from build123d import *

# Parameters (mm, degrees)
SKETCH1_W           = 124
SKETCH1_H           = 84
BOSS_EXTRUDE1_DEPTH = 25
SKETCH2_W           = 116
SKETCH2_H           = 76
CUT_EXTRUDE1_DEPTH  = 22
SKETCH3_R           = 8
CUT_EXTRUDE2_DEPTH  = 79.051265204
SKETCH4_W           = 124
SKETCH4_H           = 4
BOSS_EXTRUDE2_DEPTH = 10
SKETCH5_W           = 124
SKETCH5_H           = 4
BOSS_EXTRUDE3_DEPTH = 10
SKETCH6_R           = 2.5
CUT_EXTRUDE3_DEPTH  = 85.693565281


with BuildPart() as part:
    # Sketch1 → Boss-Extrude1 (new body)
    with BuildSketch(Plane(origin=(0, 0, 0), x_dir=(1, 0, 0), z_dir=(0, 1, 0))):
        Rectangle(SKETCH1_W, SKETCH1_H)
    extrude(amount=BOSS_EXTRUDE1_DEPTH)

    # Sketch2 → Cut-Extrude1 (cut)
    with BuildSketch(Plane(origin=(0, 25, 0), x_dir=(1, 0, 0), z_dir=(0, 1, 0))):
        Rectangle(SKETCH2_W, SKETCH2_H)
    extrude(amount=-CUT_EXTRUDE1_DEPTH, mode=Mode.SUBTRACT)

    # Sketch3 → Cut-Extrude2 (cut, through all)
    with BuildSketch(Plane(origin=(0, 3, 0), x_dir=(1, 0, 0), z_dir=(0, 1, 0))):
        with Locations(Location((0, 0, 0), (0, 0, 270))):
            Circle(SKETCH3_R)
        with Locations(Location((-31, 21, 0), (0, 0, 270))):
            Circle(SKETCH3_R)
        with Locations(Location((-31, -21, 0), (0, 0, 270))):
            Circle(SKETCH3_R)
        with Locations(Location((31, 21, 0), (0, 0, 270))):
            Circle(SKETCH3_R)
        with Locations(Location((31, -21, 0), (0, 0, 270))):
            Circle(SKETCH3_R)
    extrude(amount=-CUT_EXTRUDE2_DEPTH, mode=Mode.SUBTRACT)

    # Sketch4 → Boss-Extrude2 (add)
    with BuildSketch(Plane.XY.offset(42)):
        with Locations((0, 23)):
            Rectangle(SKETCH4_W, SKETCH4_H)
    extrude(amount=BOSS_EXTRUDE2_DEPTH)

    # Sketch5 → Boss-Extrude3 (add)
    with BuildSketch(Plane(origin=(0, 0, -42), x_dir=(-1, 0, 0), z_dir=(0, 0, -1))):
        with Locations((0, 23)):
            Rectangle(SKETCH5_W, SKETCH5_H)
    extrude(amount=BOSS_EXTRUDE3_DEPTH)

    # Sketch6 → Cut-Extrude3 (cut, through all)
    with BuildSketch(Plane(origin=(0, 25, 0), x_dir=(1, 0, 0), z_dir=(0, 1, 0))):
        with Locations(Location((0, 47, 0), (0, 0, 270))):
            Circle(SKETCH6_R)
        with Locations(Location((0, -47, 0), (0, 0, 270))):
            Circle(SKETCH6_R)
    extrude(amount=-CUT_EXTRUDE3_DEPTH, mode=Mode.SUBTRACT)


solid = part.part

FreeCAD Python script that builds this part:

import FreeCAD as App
import Part
import Sketcher

V = App.Vector
Q = App.Units.Quantity

doc = App.newDocument("Part")
params = doc.addObject("Spreadsheet::Sheet", "Params")
for row, (alias, value) in enumerate([
    ("sketch1_width", "124 mm"),
    ("sketch1_height", "84 mm"),
    ("pad1_length", "25 mm"),
    ("sketch2_width", "116 mm"),
    ("sketch2_height", "76 mm"),
    ("pocket1_length", "22 mm"),
    ("sketch3_diameter", "16 mm"),
    ("sketch4_width", "124 mm"),
    ("sketch4_height", "4 mm"),
    ("pad2_length", "10 mm"),
    ("sketch5_width", "124 mm"),
    ("sketch5_height", "4 mm"),
    ("pad3_length", "10 mm"),
    ("sketch6_diameter", "5 mm"),
], start=1):
    params.set(f"A{row}", alias)
    params.set(f"B{row}", "=" + value)
    params.setAlias(f"B{row}", alias)

body = doc.addObject("PartDesign::Body", "Body")

# Sketch on XZ plane
sketch1 = body.newObject("Sketcher::SketchObject", "Sketch")
sketch1.AttachmentSupport = (doc.getObject("XZ_Plane"), [""])
sketch1.MapMode = "FlatFace"
sketch1.addGeometry(Part.LineSegment(V(-62, -42, 0), V(-62, 42, 0)), False)
sketch1.addGeometry(Part.LineSegment(V(-62, 42, 0), V(62, 42, 0)), False)
sketch1.addGeometry(Part.LineSegment(V(62, 42, 0), V(62, -42, 0)), False)
sketch1.addGeometry(Part.LineSegment(V(62, -42, 0), V(-62, -42, 0)), False)
sketch1.addConstraint(Sketcher.Constraint("Coincident", 0, 2, 1, 1))
sketch1.addConstraint(Sketcher.Constraint("Coincident", 1, 2, 2, 1))
sketch1.addConstraint(Sketcher.Constraint("Coincident", 2, 2, 3, 1))
sketch1.addConstraint(Sketcher.Constraint("Coincident", 3, 2, 0, 1))
sketch1.addConstraint(Sketcher.Constraint("Vertical", 0))
sketch1.addConstraint(Sketcher.Constraint("Horizontal", 1))
sketch1.addConstraint(Sketcher.Constraint("Vertical", 2))
sketch1.addConstraint(Sketcher.Constraint("Horizontal", 3))
sketch1.addConstraint(Sketcher.Constraint("Symmetric", 0, 2, 2, 2, -1, 1))
sketch1.addConstraint(Sketcher.Constraint("DistanceX", 1, 1, 1, 2, Q("124 mm")))
sketch1.addConstraint(Sketcher.Constraint("DistanceY", 0, 1, 0, 2, Q("84 mm")))
sketch1.setExpression("Constraints[9]", "Params.sketch1_width")
sketch1.setExpression("Constraints[10]", "Params.sketch1_height")
pad1 = body.newObject("PartDesign::Pad", "Pad")
pad1.Profile = sketch1
pad1.setExpression("Length", "Params.pad1_length")
pad1.Reversed = True

# Sketch on XZ plane
sketch2 = body.newObject("Sketcher::SketchObject", "Sketch001")
sketch2.AttachmentSupport = (doc.getObject("XZ_Plane"), [""])
sketch2.MapMode = "FlatFace"
sketch2.AttachmentOffset = App.Placement(V(0, 0, -25), App.Rotation())
sketch2.addGeometry(Part.LineSegment(V(-58, -38, 0), V(-58, 38, 0)), False)
sketch2.addGeometry(Part.LineSegment(V(-58, 38, 0), V(58, 38, 0)), False)
sketch2.addGeometry(Part.LineSegment(V(58, 38, 0), V(58, -38, 0)), False)
sketch2.addGeometry(Part.LineSegment(V(58, -38, 0), V(-58, -38, 0)), False)
sketch2.addConstraint(Sketcher.Constraint("Coincident", 0, 2, 1, 1))
sketch2.addConstraint(Sketcher.Constraint("Coincident", 1, 2, 2, 1))
sketch2.addConstraint(Sketcher.Constraint("Coincident", 2, 2, 3, 1))
sketch2.addConstraint(Sketcher.Constraint("Coincident", 3, 2, 0, 1))
sketch2.addConstraint(Sketcher.Constraint("Vertical", 0))
sketch2.addConstraint(Sketcher.Constraint("Horizontal", 1))
sketch2.addConstraint(Sketcher.Constraint("Vertical", 2))
sketch2.addConstraint(Sketcher.Constraint("Horizontal", 3))
sketch2.addConstraint(Sketcher.Constraint("Symmetric", 0, 2, 2, 2, -1, 1))
sketch2.addConstraint(Sketcher.Constraint("DistanceX", 1, 1, 1, 2, Q("116 mm")))
sketch2.addConstraint(Sketcher.Constraint("DistanceY", 0, 1, 0, 2, Q("76 mm")))
sketch2.setExpression("Constraints[9]", "Params.sketch2_width")
sketch2.setExpression("Constraints[10]", "Params.sketch2_height")
pocket1 = body.newObject("PartDesign::Pocket", "Pocket")
pocket1.Profile = sketch2
pocket1.setExpression("Length", "Params.pocket1_length")
pocket1.Reversed = True

# Sketch on XZ plane
sketch3 = body.newObject("Sketcher::SketchObject", "Sketch002")
sketch3.AttachmentSupport = (doc.getObject("XZ_Plane"), [""])
sketch3.MapMode = "FlatFace"
sketch3.AttachmentOffset = App.Placement(V(0, 0, -3), App.Rotation())
sketch3.addGeometry(Part.Circle(V(0, 0, 0), V(0, 0, 1), 8), False)
sketch3.addGeometry(Part.Circle(V(-31, -21, 0), V(0, 0, 1), 8), False)
sketch3.addGeometry(Part.Circle(V(-31, 21, 0), V(0, 0, 1), 8), False)
sketch3.addGeometry(Part.Circle(V(31, -21, 0), V(0, 0, 1), 8), False)
sketch3.addGeometry(Part.Circle(V(31, 21, 0), V(0, 0, 1), 8), False)
sketch3.addConstraint(Sketcher.Constraint("Coincident", 0, 3, -1, 1))
sketch3.addConstraint(Sketcher.Constraint("Equal", 0, 1))
sketch3.addConstraint(Sketcher.Constraint("Equal", 1, 2))
sketch3.addConstraint(Sketcher.Constraint("Equal", 2, 3))
sketch3.addConstraint(Sketcher.Constraint("Equal", 3, 4))
sketch3.addConstraint(Sketcher.Constraint("Symmetric", 2, 3, 3, 3, -1, 1))
sketch3.addConstraint(Sketcher.Constraint("Symmetric", 1, 3, 4, 3, -1, 1))
sketch3.addConstraint(Sketcher.Constraint("Symmetric", 1, 3, 3, 3, -2))
sketch3.addConstraint(Sketcher.Constraint("Diameter", 0, Q("16 mm")))
sketch3.addConstraint(Sketcher.Constraint("DistanceX", 1, 3, -1, 1, Q("31 mm")))
sketch3.addConstraint(Sketcher.Constraint("DistanceY", 1, 3, -1, 1, Q("21 mm")))
sketch3.setExpression("Constraints[8]", "Params.sketch3_diameter")
pocket2 = body.newObject("PartDesign::Pocket", "Pocket001")
pocket2.Profile = sketch3
pocket2.Type = "ThroughAll"
pocket2.Reversed = True

# Sketch on XY plane
sketch4 = body.newObject("Sketcher::SketchObject", "Sketch003")
sketch4.AttachmentSupport = (doc.getObject("XY_Plane"), [""])
sketch4.MapMode = "FlatFace"
sketch4.AttachmentOffset = App.Placement(V(0, 0, 42), App.Rotation())
sketch4.addGeometry(Part.LineSegment(V(-62, 25, 0), V(-62, 21, 0)), False)
sketch4.addGeometry(Part.LineSegment(V(-62, 21, 0), V(62, 21, 0)), False)
sketch4.addGeometry(Part.LineSegment(V(62, 21, 0), V(62, 25, 0)), False)
sketch4.addGeometry(Part.LineSegment(V(62, 25, 0), V(-62, 25, 0)), False)
sketch4.addConstraint(Sketcher.Constraint("Coincident", 0, 2, 1, 1))
sketch4.addConstraint(Sketcher.Constraint("Coincident", 1, 2, 2, 1))
sketch4.addConstraint(Sketcher.Constraint("Coincident", 2, 2, 3, 1))
sketch4.addConstraint(Sketcher.Constraint("Coincident", 3, 2, 0, 1))
sketch4.addConstraint(Sketcher.Constraint("Vertical", 0))
sketch4.addConstraint(Sketcher.Constraint("Horizontal", 1))
sketch4.addConstraint(Sketcher.Constraint("Vertical", 2))
sketch4.addConstraint(Sketcher.Constraint("Horizontal", 3))
sketch4.addConstraint(Sketcher.Constraint("DistanceX", 1, 1, 1, 2, Q("124 mm")))
sketch4.addConstraint(Sketcher.Constraint("DistanceY", 0, 2, 0, 1, Q("4 mm")))
sketch4.addConstraint(Sketcher.Constraint("DistanceX", 0, 2, -1, 1, Q("62 mm")))
sketch4.addConstraint(Sketcher.Constraint("DistanceY", -1, 1, 0, 2, Q("21 mm")))
sketch4.setExpression("Constraints[8]", "Params.sketch4_width")
sketch4.setExpression("Constraints[9]", "Params.sketch4_height")
pad2 = body.newObject("PartDesign::Pad", "Pad001")
pad2.Profile = sketch4
pad2.setExpression("Length", "Params.pad2_length")

# Sketch on XY plane
sketch5 = body.newObject("Sketcher::SketchObject", "Sketch004")
sketch5.AttachmentSupport = (doc.getObject("XY_Plane"), [""])
sketch5.MapMode = "FlatFace"
sketch5.AttachmentOffset = App.Placement(V(0, 0, -42), App.Rotation())
sketch5.addGeometry(Part.LineSegment(V(62, 25, 0), V(62, 21, 0)), False)
sketch5.addGeometry(Part.LineSegment(V(62, 21, 0), V(-62, 21, 0)), False)
sketch5.addGeometry(Part.LineSegment(V(-62, 21, 0), V(-62, 25, 0)), False)
sketch5.addGeometry(Part.LineSegment(V(-62, 25, 0), V(62, 25, 0)), False)
sketch5.addConstraint(Sketcher.Constraint("Coincident", 0, 2, 1, 1))
sketch5.addConstraint(Sketcher.Constraint("Coincident", 1, 2, 2, 1))
sketch5.addConstraint(Sketcher.Constraint("Coincident", 2, 2, 3, 1))
sketch5.addConstraint(Sketcher.Constraint("Coincident", 3, 2, 0, 1))
sketch5.addConstraint(Sketcher.Constraint("Vertical", 0))
sketch5.addConstraint(Sketcher.Constraint("Horizontal", 1))
sketch5.addConstraint(Sketcher.Constraint("Vertical", 2))
sketch5.addConstraint(Sketcher.Constraint("Horizontal", 3))
sketch5.addConstraint(Sketcher.Constraint("DistanceX", 1, 2, 1, 1, Q("124 mm")))
sketch5.addConstraint(Sketcher.Constraint("DistanceY", 0, 2, 0, 1, Q("4 mm")))
sketch5.addConstraint(Sketcher.Constraint("DistanceX", -1, 1, 0, 2, Q("62 mm")))
sketch5.addConstraint(Sketcher.Constraint("DistanceY", -1, 1, 0, 2, Q("21 mm")))
sketch5.setExpression("Constraints[8]", "Params.sketch5_width")
sketch5.setExpression("Constraints[9]", "Params.sketch5_height")
pad3 = body.newObject("PartDesign::Pad", "Pad002")
pad3.Profile = sketch5
pad3.setExpression("Length", "Params.pad3_length")
pad3.Reversed = True

# Sketch on XZ plane
sketch6 = body.newObject("Sketcher::SketchObject", "Sketch005")
sketch6.AttachmentSupport = (doc.getObject("XZ_Plane"), [""])
sketch6.MapMode = "FlatFace"
sketch6.AttachmentOffset = App.Placement(V(0, 0, -25), App.Rotation())
sketch6.addGeometry(Part.Circle(V(0, -47, 0), V(0, 0, 1), 2.5), False)
sketch6.addGeometry(Part.Circle(V(0, 47, 0), V(0, 0, 1), 2.5), False)
sketch6.addConstraint(Sketcher.Constraint("Equal", 0, 1))
sketch6.addConstraint(Sketcher.Constraint("Symmetric", 0, 3, 1, 3, -1, 1))
sketch6.addConstraint(Sketcher.Constraint("PointOnObject", 0, 3, -2))
sketch6.addConstraint(Sketcher.Constraint("Diameter", 0, Q("5 mm")))
sketch6.addConstraint(Sketcher.Constraint("DistanceY", 0, 3, -1, 1, Q("47 mm")))
sketch6.setExpression("Constraints[3]", "Params.sketch6_diameter")
pocket3 = body.newObject("PartDesign::Pocket", "Pocket002")
pocket3.Profile = sketch6
pocket3.Type = "ThroughAll"
pocket3.Reversed = True

doc.recompute()
